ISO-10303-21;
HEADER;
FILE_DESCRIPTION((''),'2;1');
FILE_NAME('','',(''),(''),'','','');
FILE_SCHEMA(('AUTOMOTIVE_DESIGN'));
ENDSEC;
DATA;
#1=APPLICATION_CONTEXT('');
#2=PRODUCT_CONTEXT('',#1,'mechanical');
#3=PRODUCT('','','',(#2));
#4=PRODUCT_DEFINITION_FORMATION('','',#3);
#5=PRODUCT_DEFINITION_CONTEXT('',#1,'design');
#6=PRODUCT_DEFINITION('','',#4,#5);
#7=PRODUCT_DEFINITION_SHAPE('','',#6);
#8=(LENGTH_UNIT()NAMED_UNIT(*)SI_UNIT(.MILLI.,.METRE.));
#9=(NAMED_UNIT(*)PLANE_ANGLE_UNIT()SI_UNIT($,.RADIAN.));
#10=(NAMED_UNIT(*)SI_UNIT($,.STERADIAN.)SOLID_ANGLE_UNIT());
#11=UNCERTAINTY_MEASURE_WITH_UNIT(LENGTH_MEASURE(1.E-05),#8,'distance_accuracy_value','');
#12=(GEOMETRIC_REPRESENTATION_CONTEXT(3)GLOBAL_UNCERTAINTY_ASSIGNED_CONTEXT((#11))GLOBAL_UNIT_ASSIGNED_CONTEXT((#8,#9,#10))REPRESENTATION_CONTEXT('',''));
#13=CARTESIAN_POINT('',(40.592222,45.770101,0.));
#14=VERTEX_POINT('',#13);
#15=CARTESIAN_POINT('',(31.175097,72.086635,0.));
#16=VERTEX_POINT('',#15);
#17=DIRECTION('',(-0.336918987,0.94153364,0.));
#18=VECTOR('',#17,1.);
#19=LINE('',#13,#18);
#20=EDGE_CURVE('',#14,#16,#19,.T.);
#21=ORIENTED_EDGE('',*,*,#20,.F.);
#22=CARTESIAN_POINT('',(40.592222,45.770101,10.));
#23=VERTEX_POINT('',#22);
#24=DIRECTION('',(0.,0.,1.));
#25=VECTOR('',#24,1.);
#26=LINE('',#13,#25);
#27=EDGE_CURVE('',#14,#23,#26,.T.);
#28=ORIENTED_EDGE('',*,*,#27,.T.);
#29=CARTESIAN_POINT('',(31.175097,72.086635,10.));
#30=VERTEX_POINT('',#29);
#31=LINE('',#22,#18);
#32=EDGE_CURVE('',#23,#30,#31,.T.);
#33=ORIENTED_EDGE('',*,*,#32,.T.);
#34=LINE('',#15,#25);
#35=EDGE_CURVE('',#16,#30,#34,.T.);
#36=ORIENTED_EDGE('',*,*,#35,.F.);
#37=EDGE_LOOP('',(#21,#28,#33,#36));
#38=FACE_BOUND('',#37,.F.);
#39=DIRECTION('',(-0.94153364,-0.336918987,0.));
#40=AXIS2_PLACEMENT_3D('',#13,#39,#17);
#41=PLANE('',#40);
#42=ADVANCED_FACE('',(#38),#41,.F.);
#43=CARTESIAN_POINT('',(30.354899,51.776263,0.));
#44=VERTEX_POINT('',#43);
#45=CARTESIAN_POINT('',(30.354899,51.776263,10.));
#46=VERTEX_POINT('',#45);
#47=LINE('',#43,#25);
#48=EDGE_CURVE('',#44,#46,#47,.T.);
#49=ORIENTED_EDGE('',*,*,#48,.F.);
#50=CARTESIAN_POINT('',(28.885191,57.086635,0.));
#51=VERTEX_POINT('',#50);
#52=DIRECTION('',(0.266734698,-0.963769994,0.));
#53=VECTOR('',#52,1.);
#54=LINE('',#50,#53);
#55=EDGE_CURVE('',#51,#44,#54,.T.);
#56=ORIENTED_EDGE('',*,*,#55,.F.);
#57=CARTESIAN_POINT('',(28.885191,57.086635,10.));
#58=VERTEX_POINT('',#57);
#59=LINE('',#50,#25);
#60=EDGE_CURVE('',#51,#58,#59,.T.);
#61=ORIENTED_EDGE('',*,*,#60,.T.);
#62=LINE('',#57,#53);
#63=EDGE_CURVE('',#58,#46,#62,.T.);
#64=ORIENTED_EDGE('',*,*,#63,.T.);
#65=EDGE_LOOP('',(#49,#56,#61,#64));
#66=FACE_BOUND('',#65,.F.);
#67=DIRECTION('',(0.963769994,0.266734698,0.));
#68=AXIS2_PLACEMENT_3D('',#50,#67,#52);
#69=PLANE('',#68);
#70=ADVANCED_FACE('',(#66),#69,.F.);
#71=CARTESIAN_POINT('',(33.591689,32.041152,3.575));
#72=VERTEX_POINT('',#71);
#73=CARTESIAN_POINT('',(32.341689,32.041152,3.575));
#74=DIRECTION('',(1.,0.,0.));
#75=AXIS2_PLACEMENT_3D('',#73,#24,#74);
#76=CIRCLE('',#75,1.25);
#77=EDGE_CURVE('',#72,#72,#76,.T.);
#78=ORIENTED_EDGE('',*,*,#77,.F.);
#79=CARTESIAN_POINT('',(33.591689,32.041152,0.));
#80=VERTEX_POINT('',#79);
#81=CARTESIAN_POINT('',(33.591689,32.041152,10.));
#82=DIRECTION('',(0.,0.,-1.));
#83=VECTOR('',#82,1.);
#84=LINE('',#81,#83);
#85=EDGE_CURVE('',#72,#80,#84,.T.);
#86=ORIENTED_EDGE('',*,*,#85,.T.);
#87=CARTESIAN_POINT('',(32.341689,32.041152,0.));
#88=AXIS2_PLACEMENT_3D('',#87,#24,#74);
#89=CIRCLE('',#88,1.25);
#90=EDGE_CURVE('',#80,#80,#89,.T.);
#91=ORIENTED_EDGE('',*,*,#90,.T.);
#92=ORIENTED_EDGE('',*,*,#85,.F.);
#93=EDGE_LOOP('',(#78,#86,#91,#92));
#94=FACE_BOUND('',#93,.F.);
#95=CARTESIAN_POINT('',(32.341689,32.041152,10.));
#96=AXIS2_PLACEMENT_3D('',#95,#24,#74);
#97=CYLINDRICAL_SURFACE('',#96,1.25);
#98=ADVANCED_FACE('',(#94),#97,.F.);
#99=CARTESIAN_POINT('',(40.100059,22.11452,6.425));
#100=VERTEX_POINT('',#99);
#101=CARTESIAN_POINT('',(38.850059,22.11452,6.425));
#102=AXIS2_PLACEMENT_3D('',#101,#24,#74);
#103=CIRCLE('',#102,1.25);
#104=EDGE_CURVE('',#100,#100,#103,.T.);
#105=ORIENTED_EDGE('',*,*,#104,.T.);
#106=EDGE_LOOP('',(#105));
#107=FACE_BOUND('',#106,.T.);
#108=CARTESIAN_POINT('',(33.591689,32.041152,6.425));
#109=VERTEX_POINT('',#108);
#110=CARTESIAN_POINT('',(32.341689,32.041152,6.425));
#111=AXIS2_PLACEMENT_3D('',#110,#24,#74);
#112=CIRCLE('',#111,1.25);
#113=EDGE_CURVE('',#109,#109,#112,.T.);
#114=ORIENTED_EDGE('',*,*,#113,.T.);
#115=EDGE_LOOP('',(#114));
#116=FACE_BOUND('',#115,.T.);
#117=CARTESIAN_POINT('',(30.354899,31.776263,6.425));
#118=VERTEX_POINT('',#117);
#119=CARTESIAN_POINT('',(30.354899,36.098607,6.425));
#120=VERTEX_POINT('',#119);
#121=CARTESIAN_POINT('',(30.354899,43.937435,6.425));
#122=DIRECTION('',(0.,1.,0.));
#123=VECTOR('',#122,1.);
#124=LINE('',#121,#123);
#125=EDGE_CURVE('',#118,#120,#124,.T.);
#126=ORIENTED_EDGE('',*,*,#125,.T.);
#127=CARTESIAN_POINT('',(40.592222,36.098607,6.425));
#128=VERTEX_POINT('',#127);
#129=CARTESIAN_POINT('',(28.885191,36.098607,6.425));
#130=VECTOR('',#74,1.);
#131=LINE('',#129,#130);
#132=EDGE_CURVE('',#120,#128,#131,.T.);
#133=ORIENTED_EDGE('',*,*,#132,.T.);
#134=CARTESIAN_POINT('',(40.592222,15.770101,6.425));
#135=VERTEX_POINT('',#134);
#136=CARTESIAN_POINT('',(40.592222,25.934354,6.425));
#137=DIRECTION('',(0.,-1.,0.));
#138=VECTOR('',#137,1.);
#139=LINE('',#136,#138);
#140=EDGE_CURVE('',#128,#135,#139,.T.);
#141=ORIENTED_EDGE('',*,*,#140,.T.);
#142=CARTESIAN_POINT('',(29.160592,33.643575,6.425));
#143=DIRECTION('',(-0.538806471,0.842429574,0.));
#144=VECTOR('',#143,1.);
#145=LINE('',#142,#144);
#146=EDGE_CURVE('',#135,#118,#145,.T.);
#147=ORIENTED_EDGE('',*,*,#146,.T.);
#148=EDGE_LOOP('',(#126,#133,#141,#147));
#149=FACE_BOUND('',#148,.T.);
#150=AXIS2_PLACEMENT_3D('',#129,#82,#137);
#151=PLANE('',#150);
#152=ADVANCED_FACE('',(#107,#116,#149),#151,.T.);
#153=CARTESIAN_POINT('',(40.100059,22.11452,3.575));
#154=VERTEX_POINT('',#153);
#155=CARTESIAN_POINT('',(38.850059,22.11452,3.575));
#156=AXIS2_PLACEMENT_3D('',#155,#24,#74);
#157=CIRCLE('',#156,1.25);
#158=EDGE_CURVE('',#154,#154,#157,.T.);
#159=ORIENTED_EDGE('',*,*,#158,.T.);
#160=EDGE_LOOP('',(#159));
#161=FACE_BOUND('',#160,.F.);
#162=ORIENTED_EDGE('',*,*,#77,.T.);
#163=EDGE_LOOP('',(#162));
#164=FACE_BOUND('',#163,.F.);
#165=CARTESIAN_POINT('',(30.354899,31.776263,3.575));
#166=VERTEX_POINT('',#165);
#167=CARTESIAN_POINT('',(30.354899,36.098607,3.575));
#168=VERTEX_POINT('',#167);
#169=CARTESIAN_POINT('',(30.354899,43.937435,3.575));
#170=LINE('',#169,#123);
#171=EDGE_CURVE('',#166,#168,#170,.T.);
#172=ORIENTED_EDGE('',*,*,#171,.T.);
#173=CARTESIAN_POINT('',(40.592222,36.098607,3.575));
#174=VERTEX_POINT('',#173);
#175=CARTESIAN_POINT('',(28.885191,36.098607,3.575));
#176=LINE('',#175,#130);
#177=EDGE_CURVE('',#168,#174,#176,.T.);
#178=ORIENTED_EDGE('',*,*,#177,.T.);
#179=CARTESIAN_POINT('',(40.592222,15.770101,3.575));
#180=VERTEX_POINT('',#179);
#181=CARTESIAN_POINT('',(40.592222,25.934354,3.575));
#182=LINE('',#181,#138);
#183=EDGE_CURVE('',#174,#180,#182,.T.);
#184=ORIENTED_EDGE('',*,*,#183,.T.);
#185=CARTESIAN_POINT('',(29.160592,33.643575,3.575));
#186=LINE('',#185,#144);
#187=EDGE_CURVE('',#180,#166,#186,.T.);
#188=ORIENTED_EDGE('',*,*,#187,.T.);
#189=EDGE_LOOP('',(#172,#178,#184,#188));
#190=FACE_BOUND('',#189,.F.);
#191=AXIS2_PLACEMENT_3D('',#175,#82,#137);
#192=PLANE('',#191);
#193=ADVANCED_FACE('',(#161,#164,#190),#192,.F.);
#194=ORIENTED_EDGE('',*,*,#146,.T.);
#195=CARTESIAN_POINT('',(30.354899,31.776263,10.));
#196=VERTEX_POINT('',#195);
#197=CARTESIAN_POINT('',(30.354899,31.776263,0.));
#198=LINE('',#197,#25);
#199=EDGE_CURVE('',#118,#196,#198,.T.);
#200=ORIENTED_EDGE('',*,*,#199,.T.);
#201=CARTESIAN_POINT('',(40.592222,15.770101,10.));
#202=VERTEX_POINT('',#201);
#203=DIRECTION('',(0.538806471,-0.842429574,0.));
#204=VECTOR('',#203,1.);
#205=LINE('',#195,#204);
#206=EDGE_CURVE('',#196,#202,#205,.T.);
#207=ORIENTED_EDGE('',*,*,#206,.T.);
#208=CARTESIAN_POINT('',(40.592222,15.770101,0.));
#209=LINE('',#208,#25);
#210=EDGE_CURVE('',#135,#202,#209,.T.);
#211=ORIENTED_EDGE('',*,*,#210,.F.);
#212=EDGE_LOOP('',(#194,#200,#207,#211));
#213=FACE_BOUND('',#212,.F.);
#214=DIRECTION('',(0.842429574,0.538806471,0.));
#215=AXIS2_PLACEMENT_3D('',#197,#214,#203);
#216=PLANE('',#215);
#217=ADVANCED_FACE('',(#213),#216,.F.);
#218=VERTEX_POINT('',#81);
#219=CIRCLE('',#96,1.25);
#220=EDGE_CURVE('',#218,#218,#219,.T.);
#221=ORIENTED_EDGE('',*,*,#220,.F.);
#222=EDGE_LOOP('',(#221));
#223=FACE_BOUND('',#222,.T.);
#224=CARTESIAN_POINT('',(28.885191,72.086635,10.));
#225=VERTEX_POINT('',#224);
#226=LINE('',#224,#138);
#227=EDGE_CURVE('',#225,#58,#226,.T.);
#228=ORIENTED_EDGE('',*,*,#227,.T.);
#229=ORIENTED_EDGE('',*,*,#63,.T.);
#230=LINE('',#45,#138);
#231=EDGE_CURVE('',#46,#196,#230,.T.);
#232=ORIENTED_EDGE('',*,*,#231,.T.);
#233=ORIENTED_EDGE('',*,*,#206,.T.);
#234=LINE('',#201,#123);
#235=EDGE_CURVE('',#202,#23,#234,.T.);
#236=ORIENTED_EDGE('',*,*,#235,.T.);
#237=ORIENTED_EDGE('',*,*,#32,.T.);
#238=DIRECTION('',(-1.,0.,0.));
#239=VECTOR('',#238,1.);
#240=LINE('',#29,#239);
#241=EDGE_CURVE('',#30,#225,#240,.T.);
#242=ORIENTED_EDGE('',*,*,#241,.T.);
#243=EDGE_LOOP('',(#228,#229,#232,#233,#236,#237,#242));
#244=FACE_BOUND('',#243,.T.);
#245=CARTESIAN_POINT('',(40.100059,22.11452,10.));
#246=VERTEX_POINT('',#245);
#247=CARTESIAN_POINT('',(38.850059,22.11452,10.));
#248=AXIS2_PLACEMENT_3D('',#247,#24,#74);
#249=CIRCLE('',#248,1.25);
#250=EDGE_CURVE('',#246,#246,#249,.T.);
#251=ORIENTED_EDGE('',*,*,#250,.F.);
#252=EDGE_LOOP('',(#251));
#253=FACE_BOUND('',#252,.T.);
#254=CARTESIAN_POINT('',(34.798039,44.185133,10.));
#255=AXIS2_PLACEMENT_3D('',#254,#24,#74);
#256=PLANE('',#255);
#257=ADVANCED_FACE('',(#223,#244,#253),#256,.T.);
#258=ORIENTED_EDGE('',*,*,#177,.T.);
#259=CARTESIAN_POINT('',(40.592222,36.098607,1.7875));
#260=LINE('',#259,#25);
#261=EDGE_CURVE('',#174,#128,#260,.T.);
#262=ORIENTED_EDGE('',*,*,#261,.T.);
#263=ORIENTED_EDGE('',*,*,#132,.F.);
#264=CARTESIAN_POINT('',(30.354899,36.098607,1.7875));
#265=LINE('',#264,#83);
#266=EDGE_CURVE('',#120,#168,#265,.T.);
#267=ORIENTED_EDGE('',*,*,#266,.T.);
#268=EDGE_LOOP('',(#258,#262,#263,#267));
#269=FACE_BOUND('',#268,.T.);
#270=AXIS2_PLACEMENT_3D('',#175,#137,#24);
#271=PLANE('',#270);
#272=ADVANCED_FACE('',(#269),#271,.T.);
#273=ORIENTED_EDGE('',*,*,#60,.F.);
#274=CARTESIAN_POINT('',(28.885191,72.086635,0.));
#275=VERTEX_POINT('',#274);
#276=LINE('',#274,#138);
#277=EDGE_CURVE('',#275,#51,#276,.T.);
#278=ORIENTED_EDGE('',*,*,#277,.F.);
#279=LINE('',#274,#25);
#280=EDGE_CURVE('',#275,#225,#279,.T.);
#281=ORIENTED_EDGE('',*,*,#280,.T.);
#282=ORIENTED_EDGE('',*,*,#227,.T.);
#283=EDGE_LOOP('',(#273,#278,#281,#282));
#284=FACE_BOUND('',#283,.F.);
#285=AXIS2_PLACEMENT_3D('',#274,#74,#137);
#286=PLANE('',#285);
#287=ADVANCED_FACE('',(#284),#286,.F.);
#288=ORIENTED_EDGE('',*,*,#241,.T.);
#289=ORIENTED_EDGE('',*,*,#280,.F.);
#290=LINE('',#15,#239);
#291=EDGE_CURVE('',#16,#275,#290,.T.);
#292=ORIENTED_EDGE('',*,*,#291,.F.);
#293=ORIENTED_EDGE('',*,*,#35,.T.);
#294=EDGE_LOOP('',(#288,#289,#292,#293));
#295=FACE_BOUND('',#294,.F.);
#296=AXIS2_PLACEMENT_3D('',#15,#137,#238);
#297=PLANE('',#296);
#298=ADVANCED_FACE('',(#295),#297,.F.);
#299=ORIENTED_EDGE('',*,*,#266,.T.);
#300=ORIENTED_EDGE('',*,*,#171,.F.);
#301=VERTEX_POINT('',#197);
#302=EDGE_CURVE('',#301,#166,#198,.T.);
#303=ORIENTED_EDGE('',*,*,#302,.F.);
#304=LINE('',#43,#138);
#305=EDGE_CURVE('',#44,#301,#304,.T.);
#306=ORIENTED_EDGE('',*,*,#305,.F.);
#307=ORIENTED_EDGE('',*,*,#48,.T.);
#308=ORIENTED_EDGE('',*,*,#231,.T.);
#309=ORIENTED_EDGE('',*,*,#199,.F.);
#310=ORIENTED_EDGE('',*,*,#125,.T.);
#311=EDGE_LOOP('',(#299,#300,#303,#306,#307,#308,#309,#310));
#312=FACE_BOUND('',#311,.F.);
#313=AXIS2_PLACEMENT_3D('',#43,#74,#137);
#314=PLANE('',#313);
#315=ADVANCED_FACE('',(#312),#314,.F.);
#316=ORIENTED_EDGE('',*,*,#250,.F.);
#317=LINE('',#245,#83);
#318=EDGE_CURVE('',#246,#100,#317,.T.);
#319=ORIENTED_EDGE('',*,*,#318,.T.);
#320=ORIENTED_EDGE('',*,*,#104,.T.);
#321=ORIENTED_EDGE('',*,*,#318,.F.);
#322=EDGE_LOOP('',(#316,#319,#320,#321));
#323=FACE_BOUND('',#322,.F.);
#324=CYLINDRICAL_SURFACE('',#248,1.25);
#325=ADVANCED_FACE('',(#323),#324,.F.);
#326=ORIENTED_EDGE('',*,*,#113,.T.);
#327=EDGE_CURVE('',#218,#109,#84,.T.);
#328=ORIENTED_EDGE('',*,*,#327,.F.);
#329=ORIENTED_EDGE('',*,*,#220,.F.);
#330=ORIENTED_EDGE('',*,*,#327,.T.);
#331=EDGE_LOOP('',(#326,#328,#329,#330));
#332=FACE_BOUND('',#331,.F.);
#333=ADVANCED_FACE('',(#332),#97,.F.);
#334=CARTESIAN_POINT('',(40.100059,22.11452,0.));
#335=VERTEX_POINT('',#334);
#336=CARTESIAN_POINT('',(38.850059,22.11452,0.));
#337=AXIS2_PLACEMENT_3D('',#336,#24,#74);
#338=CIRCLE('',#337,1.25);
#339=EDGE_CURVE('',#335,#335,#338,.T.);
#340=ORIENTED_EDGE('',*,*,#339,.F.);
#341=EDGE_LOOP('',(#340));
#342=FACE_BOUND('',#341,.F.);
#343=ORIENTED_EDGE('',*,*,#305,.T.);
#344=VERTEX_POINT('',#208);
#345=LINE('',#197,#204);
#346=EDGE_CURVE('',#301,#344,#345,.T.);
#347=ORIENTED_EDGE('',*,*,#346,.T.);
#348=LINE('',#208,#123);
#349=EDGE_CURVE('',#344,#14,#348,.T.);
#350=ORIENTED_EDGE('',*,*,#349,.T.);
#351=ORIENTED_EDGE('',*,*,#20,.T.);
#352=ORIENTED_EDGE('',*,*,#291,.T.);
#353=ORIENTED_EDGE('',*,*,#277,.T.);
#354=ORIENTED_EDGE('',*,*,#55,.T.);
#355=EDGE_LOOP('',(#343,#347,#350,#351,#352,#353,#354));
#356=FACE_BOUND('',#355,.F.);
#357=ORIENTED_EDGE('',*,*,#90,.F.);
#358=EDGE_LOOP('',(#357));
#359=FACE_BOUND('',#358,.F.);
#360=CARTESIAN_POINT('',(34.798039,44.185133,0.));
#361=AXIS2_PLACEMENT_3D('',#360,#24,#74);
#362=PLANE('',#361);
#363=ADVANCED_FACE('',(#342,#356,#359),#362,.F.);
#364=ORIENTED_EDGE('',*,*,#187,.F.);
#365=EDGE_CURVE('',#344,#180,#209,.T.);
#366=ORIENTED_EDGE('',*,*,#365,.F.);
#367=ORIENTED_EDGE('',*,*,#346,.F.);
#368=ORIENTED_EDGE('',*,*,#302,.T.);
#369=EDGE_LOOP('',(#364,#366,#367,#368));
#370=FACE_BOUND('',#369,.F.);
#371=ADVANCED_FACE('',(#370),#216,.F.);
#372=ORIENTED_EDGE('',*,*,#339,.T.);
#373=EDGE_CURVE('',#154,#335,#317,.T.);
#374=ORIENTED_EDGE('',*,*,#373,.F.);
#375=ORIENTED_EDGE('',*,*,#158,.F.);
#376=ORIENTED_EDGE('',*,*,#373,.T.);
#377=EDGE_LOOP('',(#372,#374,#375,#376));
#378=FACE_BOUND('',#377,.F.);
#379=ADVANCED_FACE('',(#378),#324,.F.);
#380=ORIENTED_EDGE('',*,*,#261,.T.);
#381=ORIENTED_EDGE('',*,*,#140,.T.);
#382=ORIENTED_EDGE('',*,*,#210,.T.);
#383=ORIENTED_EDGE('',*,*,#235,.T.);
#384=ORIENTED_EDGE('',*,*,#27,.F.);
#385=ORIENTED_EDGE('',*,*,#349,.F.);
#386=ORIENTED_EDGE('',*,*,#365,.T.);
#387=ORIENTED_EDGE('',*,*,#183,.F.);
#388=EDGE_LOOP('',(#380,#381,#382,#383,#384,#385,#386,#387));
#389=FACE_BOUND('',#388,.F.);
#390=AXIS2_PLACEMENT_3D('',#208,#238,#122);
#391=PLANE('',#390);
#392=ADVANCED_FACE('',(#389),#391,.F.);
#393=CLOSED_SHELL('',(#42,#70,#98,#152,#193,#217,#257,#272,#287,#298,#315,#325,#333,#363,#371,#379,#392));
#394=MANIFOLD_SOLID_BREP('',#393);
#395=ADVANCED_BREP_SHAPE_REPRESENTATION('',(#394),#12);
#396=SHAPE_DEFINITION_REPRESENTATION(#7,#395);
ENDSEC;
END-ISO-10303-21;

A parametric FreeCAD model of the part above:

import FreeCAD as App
import Part
import Sketcher
from FreeCAD import Vector

doc = App.newDocument("Part")
body = doc.addObject("PartDesign::Body", "Body")
body.AllowCompound = True

# Sketch on XY plane
sketch1 = doc.addObject("Sketcher::SketchObject", "Sketch")
body.addObject(sketch1)
sketch1.AttachmentSupport = (doc.XY_Plane, [""])
sketch1.MapMode = "FlatFace"
sketch1.AttachmentOffset = App.Placement(Vector(0, 0, 10), App.Rotation())
sketch1.addGeometry(Part.Circle(Vector(32.341689, 32.041152, 0), Vector(0, 0, 1), 1.25), False)
sketch1.addGeometry(Part.Circle(Vector(38.850059, 22.11452, 0), Vector(0, 0, 1), 1.25), False)
sketch1.addConstraint(Sketcher.Constraint("Equal", 0, 1))
sketch1.addConstraint(Sketcher.Constraint("Diameter", 0, 2.5))
sketch1.addConstraint(Sketcher.Constraint("DistanceX", -1, 1, 0, 3, 32.341689))
sketch1.addConstraint(Sketcher.Constraint("DistanceY", -1, 1, 0, 3, 32.041152))
sketch1.addConstraint(Sketcher.Constraint("DistanceX", -1, 1, 1, 3, 38.850059))
sketch1.addConstraint(Sketcher.Constraint("DistanceY", -1, 1, 1, 3, 22.11452))
pad1 = doc.addObject("PartDesign::Pad", "Pad")
body.addObject(pad1)
pad1.Profile = sketch1
pad1.Length = 10
pad1.Reversed = True
body2 = doc.addObject("PartDesign::Body", "Body001")

# Sketch on YZ plane
sketch2 = doc.addObject("Sketcher::SketchObject", "Sketch001")
body2.addObject(sketch2)
sketch2.AttachmentSupport = (doc.getObject("YZ_Plane001"), [""])
sketch2.MapMode = "FlatFace"
sketch2.AttachmentOffset = App.Placement(Vector(0, 0, 28.885191), App.Rotation())
sketch2.addGeometry(Part.LineSegment(Vector(36.098607, 6.425, 0), Vector(36.098607, 3.575, 0)), False)
sketch2.addGeometry(Part.LineSegment(Vector(36.098607, 3.575, 0), Vector(15.098607, 3.575, 0)), False)
sketch2.addGeometry(Part.LineSegment(Vector(15.098607, 3.575, 0), Vector(15.098607, 6.425, 0)), False)
sketch2.addGeometry(Part.LineSegment(Vector(15.098607, 6.425, 0), Vector(36.098607, 6.425, 0)), False)
sketch2.addConstraint(Sketcher.Constraint("Coincident", 0, 2, 1, 1))
sketch2.addConstraint(Sketcher.Constraint("Coincident", 1, 2, 2, 1))
sketch2.addConstraint(Sketcher.Constraint("Coincident", 2, 2, 3, 1))
sketch2.addConstraint(Sketcher.Constraint("Coincident", 3, 2, 0, 1))
sketch2.addConstraint(Sketcher.Constraint("Vertical", 0))
sketch2.addConstraint(Sketcher.Constraint("Horizontal", 1))
sketch2.addConstraint(Sketcher.Constraint("Vertical", 2))
sketch2.addConstraint(Sketcher.Constraint("Horizontal", 3))
sketch2.addConstraint(Sketcher.Constraint("DistanceX", 1, 2, 1, 1, 21.0))
sketch2.addConstraint(Sketcher.Constraint("DistanceY", 0, 2, 0, 1, 2.85))
sketch2.addConstraint(Sketcher.Constraint("DistanceY", -1, 1, 0, 2, 3.575))
sketch2.addConstraint(Sketcher.Constraint("DistanceX", -1, 1, 0, 2, 36.098607))
pad2 = doc.addObject("PartDesign::Pad", "Pad001")
body2.addObject(pad2)
pad2.Profile = sketch2
pad2.Length = 12
body3 = doc.addObject("PartDesign::Body", "Body002")

# Sketch on XY plane
sketch3 = doc.addObject("Sketcher::SketchObject", "Sketch002")
body3.addObject(sketch3)
sketch3.AttachmentSupport = (doc.getObject("XY_Plane002"), [""])
sketch3.MapMode = "FlatFace"
sketch3.addGeometry(Part.LineSegment(Vector(30.354899, 31.776263, 0), Vector(40.592222, 15.770101, 0)), False)
sketch3.addGeometry(Part.LineSegment(Vector(40.592222, 15.770101, 0), Vector(40.592222, 45.770101, 0)), False)
sketch3.addGeometry(Part.LineSegment(Vector(40.592222, 45.770101, 0), Vector(31.175097, 72.086635, 0)), False)
sketch3.addGeometry(Part.LineSegment(Vector(31.175097, 72.086635, 0), Vector(28.885191, 72.086635, 0)), False)
sketch3.addGeometry(Part.LineSegment(Vector(28.885191, 72.086635, 0), Vector(28.885191, 57.086635, 0)), False)
sketch3.addGeometry(Part.LineSegment(Vector(28.885191, 57.086635, 0), Vector(30.354899, 51.776263, 0)), False)
sketch3.addGeometry(Part.LineSegment(Vector(30.354899, 51.776263, 0), Vector(30.354899, 31.776263, 0)), False)
sketch3.addConstraint(Sketcher.Constraint("Coincident", 0, 2, 1, 1))
sketch3.addConstraint(Sketcher.Constraint("Coincident", 1, 2, 2, 1))
sketch3.addConstraint(Sketcher.Constraint("Coincident", 2, 2, 3, 1))
sketch3.addConstraint(Sketcher.Constraint("Coincident", 3, 2, 4, 1))
sketch3.addConstraint(Sketcher.Constraint("Coincident", 4, 2, 5, 1))
sketch3.addConstraint(Sketcher.Constraint("Coincident", 5, 2, 6, 1))
sketch3.addConstraint(Sketcher.Constraint("Coincident", 6, 2, 0, 1))
sketch3.addConstraint(Sketcher.Constraint("Vertical", 1))
sketch3.addConstraint(Sketcher.Constraint("Horizontal", 3))
sketch3.addConstraint(Sketcher.Constraint("Vertical", 4))
sketch3.addConstraint(Sketcher.Constraint("Vertical", 6))
sketch3.addConstraint(Sketcher.Constraint("DistanceY", 1, 1, 1, 2, 30.0))
sketch3.addConstraint(Sketcher.Constraint("DistanceY", 4, 2, 4, 1, 15.0))
sketch3.addConstraint(Sketcher.Constraint("DistanceY", 6, 2, 6, 1, 20.0))
sketch3.addConstraint(Sketcher.Constraint("Distance", 0, 19.0))
sketch3.addConstraint(Sketcher.Constraint("Distance", 5, 5.509999))
sketch3.addConstraint(Sketcher.Constraint("DistanceY", -1, 1, 0, 2, 15.770101))
sketch3.addConstraint(Sketcher.Constraint("DistanceX", -1, 1, 5, 2, 30.354899))
sketch3.addConstraint(Sketcher.Constraint("DistanceX", 5, 2, 2, 2, 0.820198))
sketch3.addConstraint(Sketcher.Constraint("Distance", 2, 27.95071))
sketch3.addConstraint(Sketcher.Constraint("DistanceX", 3, 2, 3, 1, 2.289906))
pad3 = doc.addObject("PartDesign::Pad", "Pad002")
body3.addObject(pad3)
pad3.Profile = sketch3
pad3.Length = 10
doc.recompute()

boolean = doc.addObject("PartDesign::Boolean", "Boolean")
body3.addObject(boolean)
boolean.Type = "Cut"
boolean.addObjects([body2])
doc.recompute()

boolean2 = doc.addObject("PartDesign::Boolean", "Boolean001")
body3.addObject(boolean2)
boolean2.Type = "Cut"
boolean2.addObjects([body])

doc.recompute()
